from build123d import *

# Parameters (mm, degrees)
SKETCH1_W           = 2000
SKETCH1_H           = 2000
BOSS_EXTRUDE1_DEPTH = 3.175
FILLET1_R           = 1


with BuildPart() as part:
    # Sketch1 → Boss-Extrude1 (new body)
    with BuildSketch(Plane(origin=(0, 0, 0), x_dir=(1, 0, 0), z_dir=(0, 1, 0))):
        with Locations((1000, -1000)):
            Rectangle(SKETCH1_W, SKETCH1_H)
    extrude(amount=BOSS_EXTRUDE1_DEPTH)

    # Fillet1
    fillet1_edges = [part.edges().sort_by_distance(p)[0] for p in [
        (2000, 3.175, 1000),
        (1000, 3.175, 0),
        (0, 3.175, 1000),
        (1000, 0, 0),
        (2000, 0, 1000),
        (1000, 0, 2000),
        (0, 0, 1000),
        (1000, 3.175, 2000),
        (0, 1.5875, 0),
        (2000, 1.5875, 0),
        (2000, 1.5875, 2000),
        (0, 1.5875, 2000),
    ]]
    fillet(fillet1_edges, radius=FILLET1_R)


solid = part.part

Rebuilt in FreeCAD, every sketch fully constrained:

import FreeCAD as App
import Part
import Sketcher
Q = App.Units.Quantity

doc = App.newDocument("Part")
params = doc.addObject("Spreadsheet::Sheet", "Params")
for row, (alias, value) in enumerate([
    ("sketch1_width", "2000 mm"),
    ("pad1_length", "3.175 mm"),
    ("fillet_radius", "1 mm"),
], start=1):
    params.set(f"A{row}", alias)
    params.set(f"B{row}", "=" + value)
    params.setAlias(f"B{row}", alias)

body = doc.addObject("PartDesign::Body", "Body")

sketch1 = doc.addObject("Sketcher::SketchObject", "Sketch")
body.addObject(sketch1)
sketch1.AttachmentSupport = (doc.XZ_Plane, [""])
sketch1.MapMode = "FlatFace"
sketch1.addGeometry(Part.LineSegment(App.Vector(0, 0, 0), App.Vector(0, 2000, 0)), False)
sketch1.addGeometry(Part.LineSegment(App.Vector(0, 2000, 0), App.Vector(2000, 2000, 0)), False)
sketch1.addGeometry(Part.LineSegment(App.Vector(2000, 2000, 0), App.Vector(2000, 0, 0)), False)
sketch1.addGeometry(Part.LineSegment(App.Vector(2000, 0, 0), App.Vector(0, 0, 0)), False)
sketch1.addConstraint(Sketcher.Constraint("Coincident", 0, 2, 1, 1))
sketch1.addConstraint(Sketcher.Constraint("Coincident", 1, 2, 2, 1))
sketch1.addConstraint(Sketcher.Constraint("Coincident", 2, 2, 3, 1))
sketch1.addConstraint(Sketcher.Constraint("Coincident", 3, 2, 0, 1))
sketch1.addConstraint(Sketcher.Constraint("Vertical", 0))
sketch1.addConstraint(Sketcher.Constraint("Horizontal", 1))
sketch1.addConstraint(Sketcher.Constraint("Vertical", 2))
sketch1.addConstraint(Sketcher.Constraint("Horizontal", 3))
sketch1.addConstraint(Sketcher.Constraint("Coincident", 3, 2, -1, 1))
sketch1.addConstraint(Sketcher.Constraint("Equal", 3, 0))
sketch1.addConstraint(Sketcher.Constraint("DistanceX", 1, 1, 1, 2, Q("2000 mm")))
sketch1.setExpression("Constraints[10]", "Params.sketch1_width")
pad1 = doc.addObject("PartDesign::Pad", "Pad")
body.addObject(pad1)
pad1.Profile = sketch1
pad1.setExpression("Length", "Params.pad1_length")
pad1.Reversed = True
doc.recompute()

fillet = doc.addObject("PartDesign::Fillet", "Fillet")
body.addObject(fillet)
fillet.Base = (pad1, ["Edge1"])
fillet.UseAllEdges = True
fillet.setExpression("Radius", "Params.fillet_radius")

doc.recompute()
